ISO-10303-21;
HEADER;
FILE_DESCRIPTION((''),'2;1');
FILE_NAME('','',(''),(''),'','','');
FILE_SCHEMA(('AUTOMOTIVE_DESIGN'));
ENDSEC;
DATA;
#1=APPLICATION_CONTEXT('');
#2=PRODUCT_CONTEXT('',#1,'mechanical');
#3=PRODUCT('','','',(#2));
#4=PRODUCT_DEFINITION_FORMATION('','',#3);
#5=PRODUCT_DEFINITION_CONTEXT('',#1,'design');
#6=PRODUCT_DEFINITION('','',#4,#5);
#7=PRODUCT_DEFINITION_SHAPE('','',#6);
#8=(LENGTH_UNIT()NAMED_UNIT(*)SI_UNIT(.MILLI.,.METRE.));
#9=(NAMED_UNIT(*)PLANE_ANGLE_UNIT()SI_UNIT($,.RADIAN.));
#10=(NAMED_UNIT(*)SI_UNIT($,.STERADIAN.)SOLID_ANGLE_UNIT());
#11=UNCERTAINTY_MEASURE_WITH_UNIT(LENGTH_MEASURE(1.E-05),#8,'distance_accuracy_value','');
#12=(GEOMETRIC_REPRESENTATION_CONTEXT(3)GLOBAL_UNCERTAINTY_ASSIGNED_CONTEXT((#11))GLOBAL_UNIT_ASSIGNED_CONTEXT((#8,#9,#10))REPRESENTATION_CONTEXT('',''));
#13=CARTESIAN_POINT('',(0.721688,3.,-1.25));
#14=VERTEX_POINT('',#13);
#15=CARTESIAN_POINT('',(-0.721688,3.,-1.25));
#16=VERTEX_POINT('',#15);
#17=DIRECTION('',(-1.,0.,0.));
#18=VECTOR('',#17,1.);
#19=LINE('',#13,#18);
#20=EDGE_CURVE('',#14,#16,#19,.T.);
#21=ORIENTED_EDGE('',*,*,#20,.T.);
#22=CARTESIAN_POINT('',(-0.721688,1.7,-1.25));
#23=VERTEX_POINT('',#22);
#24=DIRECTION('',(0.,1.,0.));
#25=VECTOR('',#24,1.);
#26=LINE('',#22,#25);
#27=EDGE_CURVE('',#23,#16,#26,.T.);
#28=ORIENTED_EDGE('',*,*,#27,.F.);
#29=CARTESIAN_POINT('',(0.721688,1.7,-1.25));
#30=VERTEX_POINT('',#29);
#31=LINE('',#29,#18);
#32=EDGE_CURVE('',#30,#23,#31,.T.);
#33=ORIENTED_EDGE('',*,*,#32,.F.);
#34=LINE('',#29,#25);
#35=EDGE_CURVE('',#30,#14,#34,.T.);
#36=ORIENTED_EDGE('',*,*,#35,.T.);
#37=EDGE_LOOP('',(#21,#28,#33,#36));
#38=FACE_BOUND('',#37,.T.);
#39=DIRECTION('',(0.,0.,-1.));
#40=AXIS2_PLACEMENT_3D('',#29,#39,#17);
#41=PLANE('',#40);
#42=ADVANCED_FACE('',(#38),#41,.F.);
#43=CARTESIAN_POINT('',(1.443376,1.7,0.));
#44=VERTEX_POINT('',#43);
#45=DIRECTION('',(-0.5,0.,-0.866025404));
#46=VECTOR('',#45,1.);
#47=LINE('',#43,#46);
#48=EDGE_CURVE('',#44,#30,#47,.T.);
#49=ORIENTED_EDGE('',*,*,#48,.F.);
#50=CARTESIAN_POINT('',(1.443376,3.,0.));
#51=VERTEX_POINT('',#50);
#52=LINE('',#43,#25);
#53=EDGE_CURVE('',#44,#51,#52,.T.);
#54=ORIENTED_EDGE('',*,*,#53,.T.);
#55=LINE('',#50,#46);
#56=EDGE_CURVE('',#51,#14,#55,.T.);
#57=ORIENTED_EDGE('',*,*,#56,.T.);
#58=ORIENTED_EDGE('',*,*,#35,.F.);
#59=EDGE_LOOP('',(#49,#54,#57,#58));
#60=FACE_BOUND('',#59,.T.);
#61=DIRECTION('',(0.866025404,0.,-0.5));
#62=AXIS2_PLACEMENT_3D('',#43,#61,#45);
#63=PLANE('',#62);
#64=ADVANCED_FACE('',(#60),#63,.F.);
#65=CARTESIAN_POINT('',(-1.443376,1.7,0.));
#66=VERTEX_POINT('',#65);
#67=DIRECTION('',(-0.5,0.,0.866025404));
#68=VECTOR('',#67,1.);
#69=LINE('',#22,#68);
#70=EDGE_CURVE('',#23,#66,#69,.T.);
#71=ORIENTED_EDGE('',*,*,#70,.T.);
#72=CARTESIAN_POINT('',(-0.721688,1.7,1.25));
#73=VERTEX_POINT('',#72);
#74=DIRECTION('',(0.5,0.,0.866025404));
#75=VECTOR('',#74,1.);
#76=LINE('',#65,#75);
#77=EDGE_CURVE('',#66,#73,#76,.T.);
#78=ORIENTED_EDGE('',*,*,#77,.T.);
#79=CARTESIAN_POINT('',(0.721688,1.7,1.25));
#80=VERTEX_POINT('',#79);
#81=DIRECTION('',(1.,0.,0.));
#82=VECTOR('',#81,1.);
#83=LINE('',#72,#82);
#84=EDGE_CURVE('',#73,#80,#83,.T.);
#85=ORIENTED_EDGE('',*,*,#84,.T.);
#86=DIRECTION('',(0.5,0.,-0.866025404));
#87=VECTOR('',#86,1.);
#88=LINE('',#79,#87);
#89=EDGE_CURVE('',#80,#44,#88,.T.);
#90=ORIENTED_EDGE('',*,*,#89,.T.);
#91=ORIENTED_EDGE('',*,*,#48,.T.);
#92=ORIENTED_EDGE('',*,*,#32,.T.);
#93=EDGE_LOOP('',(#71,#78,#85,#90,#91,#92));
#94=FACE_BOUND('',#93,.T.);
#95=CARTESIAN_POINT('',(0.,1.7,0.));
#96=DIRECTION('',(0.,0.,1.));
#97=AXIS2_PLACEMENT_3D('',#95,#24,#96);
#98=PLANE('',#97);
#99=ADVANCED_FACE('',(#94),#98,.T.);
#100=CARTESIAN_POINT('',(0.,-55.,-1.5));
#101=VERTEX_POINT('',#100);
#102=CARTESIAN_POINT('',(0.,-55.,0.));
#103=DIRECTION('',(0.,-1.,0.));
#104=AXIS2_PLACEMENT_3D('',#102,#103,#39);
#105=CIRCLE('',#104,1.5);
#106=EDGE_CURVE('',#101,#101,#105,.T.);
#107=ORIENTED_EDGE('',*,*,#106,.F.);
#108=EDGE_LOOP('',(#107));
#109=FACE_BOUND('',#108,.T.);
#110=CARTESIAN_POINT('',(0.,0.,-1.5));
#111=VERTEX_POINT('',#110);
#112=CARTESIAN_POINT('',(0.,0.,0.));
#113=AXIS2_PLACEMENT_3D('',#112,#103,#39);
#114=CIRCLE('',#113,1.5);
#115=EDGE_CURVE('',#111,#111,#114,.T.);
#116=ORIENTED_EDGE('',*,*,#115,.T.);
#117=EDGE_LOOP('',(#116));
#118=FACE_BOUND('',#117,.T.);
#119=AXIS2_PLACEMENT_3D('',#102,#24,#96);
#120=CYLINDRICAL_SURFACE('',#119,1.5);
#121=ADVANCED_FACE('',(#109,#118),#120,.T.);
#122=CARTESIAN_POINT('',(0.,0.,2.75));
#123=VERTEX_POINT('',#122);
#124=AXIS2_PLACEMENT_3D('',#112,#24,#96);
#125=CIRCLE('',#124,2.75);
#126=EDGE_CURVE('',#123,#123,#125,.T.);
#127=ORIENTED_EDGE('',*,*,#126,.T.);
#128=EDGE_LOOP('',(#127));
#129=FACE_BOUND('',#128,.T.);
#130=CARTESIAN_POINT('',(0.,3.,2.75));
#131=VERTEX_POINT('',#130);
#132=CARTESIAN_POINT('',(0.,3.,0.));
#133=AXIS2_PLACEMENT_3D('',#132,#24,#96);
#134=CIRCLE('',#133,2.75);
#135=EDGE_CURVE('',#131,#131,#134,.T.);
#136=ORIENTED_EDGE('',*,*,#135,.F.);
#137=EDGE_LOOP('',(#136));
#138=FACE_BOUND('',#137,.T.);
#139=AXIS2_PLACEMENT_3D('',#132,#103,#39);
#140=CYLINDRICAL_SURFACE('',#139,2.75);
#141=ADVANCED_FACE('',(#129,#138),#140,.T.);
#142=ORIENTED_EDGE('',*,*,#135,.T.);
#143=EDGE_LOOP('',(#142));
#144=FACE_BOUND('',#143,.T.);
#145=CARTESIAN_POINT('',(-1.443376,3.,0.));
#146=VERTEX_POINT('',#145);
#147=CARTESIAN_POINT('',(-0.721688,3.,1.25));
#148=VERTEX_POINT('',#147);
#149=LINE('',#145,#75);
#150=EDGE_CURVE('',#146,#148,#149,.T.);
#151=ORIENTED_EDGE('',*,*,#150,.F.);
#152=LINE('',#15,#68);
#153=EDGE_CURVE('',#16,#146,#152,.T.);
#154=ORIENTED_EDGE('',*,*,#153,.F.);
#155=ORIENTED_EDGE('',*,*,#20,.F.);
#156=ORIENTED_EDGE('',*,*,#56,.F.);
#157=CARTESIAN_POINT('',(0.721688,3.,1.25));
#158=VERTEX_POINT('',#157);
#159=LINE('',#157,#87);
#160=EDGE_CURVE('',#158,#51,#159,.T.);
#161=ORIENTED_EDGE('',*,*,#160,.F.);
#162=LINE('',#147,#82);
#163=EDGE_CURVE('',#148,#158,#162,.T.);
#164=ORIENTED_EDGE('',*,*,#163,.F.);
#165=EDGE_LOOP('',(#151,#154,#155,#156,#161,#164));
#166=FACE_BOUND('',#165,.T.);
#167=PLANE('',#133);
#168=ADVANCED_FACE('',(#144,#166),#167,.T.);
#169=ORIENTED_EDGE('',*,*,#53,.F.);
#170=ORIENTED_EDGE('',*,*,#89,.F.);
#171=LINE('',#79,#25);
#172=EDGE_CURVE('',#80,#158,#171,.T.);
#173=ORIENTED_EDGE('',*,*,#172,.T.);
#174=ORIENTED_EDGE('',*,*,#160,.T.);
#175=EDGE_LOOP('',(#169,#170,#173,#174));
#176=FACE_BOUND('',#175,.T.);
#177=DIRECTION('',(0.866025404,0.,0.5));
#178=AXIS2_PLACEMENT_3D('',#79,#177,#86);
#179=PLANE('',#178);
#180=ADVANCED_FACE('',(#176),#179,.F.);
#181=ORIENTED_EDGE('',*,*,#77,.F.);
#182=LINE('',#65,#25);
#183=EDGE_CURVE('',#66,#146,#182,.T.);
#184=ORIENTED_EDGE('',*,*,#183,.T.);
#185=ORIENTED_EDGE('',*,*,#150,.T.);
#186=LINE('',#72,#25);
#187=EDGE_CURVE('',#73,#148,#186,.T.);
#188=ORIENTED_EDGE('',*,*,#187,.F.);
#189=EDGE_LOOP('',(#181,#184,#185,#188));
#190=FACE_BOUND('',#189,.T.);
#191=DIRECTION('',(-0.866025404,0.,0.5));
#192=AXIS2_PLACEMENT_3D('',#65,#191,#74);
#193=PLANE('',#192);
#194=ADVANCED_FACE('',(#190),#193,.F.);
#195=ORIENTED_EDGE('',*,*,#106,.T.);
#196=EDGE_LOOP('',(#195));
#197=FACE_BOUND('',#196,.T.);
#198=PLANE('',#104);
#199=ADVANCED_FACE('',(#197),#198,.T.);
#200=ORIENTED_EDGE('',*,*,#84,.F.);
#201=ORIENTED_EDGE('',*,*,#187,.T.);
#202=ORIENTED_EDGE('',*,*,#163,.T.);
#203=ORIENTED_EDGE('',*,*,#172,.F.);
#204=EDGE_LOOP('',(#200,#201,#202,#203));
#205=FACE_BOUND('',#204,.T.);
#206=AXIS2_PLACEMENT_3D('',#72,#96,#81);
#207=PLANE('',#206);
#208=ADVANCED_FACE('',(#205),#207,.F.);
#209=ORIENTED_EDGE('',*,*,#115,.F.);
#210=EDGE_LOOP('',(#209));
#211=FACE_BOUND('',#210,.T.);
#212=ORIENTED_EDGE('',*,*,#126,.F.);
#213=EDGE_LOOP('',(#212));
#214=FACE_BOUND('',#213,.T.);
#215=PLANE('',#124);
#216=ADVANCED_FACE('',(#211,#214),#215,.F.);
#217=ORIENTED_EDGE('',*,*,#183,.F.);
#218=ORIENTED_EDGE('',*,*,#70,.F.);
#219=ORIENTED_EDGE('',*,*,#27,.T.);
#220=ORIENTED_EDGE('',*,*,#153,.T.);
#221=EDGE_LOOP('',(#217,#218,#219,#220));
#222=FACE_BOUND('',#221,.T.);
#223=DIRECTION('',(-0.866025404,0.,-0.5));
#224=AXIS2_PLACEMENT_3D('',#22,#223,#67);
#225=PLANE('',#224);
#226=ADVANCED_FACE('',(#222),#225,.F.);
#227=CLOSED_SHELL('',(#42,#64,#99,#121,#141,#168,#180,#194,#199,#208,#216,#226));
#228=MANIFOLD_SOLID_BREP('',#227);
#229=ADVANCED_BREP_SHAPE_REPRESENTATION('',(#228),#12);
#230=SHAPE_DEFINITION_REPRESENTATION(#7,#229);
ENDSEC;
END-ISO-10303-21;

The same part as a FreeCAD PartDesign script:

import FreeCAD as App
import Part
import Sketcher
Q = App.Units.Quantity


def add_polygon(sketch, points):
    """Adds a closed chain of lines whose ends are joined by coincident constraints."""
    first, n = sketch.GeometryCount, len(points)
    for a, b in zip(points, points[1:] + points[:1]):
        sketch.addGeometry(Part.LineSegment(App.Vector(*a, 0), App.Vector(*b, 0)), False)
    for i in range(n):
        sketch.addConstraint(Sketcher.Constraint("Coincident", first + i, 2, first + (i + 1) % n, 1))

doc = App.newDocument("Part")
body = doc.addObject("PartDesign::Body", "Body")

sketch1 = doc.addObject("Sketcher::SketchObject", "Sketch")
body.addObject(sketch1)
sketch1.AttachmentSupport = (doc.XZ_Plane, [""])
sketch1.MapMode = "FlatFace"
sketch1.addGeometry(Part.Circle(App.Vector(0, 0, 0), App.Vector(0, 0, 1), 2.75), False)
sketch1.addConstraint(Sketcher.Constraint("Coincident", 0, 3, -1, 1))
sketch1.addConstraint(Sketcher.Constraint("Diameter", 0, 5.5))
pad1 = doc.addObject("PartDesign::Pad", "Pad")
body.addObject(pad1)
pad1.Profile = sketch1
pad1.Length = 3
pad1.Reversed = True

sketch2 = doc.addObject("Sketcher::SketchObject", "Sketch001")
body.addObject(sketch2)
sketch2.AttachmentSupport = (doc.XZ_Plane, [""])
sketch2.MapMode = "FlatFace"
sketch2.AttachmentOffset = App.Placement(App.Vector(0, 0, -3), App.Rotation())
add_polygon(sketch2, [(1.443376, 0), (0.721688, -1.25), (-0.721688, -1.25), (-1.443376, 0), (-0.721688, 1.25), (0.721688, 1.25)])
sketch2.addConstraint(Sketcher.Constraint("Horizontal", 1))
sketch2.addConstraint(Sketcher.Constraint("Horizontal", 4))
sketch2.addConstraint(Sketcher.Constraint("Symmetric", 0, 2, 3, 2, -1, 1))
sketch2.addConstraint(Sketcher.Constraint("Symmetric", 2, 2, 5, 2, -1, 1))
sketch2.addConstraint(Sketcher.Constraint("PointOnObject", 2, 2, -1))
sketch2.addConstraint(Sketcher.Constraint("Parallel", 2, 5))
sketch2.addConstraint(Sketcher.Constraint("Vertical", 1, 2, 3, 2))
sketch2.addConstraint(Sketcher.Constraint("Angle", 0, Q("-120 deg")))
sketch2.addConstraint(Sketcher.Constraint("DistanceY", 1, 2, 3, 2, 2.5))
sketch2.addConstraint(Sketcher.Constraint("DistanceX", 1, 2, 1, 1, 1.443376))
pocket1 = doc.addObject("PartDesign::Pocket", "Pocket")
body.addObject(pocket1)
pocket1.Profile = sketch2
pocket1.Length = 1.3
pocket1.Reversed = True

sketch3 = doc.addObject("Sketcher::SketchObject", "Sketch002")
body.addObject(sketch3)
sketch3.AttachmentSupport = (doc.XZ_Plane, [""])
sketch3.MapMode = "FlatFace"
sketch3.addGeometry(Part.Circle(App.Vector(0, 0, 0), App.Vector(0, 0, 1), 1.5), False)
sketch3.addConstraint(Sketcher.Constraint("Coincident", 0, 3, -1, 1))
sketch3.addConstraint(Sketcher.Constraint("Diameter", 0, 3.0))
pad2 = doc.addObject("PartDesign::Pad", "Pad001")
body.addObject(pad2)
pad2.Profile = sketch3
pad2.Length = 55

doc.recompute()
